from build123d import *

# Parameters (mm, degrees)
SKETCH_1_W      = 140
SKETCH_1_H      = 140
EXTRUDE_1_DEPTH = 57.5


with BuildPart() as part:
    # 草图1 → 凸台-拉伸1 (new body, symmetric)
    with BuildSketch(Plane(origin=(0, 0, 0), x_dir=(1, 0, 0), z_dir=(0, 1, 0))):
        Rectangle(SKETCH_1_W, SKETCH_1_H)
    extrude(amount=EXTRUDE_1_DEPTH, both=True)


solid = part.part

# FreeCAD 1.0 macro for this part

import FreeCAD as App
import Part
import Sketcher

doc = App.newDocument("Part")
params = doc.addObject("Spreadsheet::Sheet", "Params")
for row, (alias, value) in enumerate([
    ("sketch1_width", "140 mm"),
    ("pad1_length", "115 mm"),
], start=1):
    params.set(f"A{row}", alias)
    params.set(f"B{row}", "=" + value)
    params.setAlias(f"B{row}", alias)

body = doc.addObject("PartDesign::Body", "Body")

sketch1 = body.newObject("Sketcher::SketchObject", "Sketch")
sketch1.AttachmentSupport = (doc.getObject("XZ_Plane"), [""])
sketch1.MapMode = "FlatFace"
sketch1.addGeometry([
    Part.LineSegment(App.Vector(-70, -70, 0), App.Vector(-70, 70, 0)),
    Part.LineSegment(App.Vector(-70, 70, 0), App.Vector(70, 70, 0)),
    Part.LineSegment(App.Vector(70, 70, 0), App.Vector(70, -70, 0)),
    Part.LineSegment(App.Vector(70, -70, 0), App.Vector(-70, -70, 0)),
], False)
sketch1.addConstraint([
    Sketcher.Constraint("Coincident", 0, 2, 1, 1),
    Sketcher.Constraint("Coincident", 1, 2, 2, 1),
    Sketcher.Constraint("Coincident", 2, 2, 3, 1),
    Sketcher.Constraint("Coincident", 3, 2, 0, 1),
    Sketcher.Constraint("Vertical", 0),
    Sketcher.Constraint("Horizontal", 1),
    Sketcher.Constraint("Vertical", 2),
    Sketcher.Constraint("Horizontal", 3),
    Sketcher.Constraint("Symmetric", 0, 2, 2, 2, -1, 1),
    Sketcher.Constraint("Equal", 3, 0),
    Sketcher.Constraint("DistanceX", 1, 1, 1, 2, 140.0),
])
sketch1.setExpression("Constraints[10]", "Params.sketch1_width")
pad1 = body.newObject("PartDesign::Pad", "Pad")
pad1.Profile = sketch1
pad1.setExpression("Length", "Params.pad1_length")
pad1.Midplane = True

doc.recompute()
